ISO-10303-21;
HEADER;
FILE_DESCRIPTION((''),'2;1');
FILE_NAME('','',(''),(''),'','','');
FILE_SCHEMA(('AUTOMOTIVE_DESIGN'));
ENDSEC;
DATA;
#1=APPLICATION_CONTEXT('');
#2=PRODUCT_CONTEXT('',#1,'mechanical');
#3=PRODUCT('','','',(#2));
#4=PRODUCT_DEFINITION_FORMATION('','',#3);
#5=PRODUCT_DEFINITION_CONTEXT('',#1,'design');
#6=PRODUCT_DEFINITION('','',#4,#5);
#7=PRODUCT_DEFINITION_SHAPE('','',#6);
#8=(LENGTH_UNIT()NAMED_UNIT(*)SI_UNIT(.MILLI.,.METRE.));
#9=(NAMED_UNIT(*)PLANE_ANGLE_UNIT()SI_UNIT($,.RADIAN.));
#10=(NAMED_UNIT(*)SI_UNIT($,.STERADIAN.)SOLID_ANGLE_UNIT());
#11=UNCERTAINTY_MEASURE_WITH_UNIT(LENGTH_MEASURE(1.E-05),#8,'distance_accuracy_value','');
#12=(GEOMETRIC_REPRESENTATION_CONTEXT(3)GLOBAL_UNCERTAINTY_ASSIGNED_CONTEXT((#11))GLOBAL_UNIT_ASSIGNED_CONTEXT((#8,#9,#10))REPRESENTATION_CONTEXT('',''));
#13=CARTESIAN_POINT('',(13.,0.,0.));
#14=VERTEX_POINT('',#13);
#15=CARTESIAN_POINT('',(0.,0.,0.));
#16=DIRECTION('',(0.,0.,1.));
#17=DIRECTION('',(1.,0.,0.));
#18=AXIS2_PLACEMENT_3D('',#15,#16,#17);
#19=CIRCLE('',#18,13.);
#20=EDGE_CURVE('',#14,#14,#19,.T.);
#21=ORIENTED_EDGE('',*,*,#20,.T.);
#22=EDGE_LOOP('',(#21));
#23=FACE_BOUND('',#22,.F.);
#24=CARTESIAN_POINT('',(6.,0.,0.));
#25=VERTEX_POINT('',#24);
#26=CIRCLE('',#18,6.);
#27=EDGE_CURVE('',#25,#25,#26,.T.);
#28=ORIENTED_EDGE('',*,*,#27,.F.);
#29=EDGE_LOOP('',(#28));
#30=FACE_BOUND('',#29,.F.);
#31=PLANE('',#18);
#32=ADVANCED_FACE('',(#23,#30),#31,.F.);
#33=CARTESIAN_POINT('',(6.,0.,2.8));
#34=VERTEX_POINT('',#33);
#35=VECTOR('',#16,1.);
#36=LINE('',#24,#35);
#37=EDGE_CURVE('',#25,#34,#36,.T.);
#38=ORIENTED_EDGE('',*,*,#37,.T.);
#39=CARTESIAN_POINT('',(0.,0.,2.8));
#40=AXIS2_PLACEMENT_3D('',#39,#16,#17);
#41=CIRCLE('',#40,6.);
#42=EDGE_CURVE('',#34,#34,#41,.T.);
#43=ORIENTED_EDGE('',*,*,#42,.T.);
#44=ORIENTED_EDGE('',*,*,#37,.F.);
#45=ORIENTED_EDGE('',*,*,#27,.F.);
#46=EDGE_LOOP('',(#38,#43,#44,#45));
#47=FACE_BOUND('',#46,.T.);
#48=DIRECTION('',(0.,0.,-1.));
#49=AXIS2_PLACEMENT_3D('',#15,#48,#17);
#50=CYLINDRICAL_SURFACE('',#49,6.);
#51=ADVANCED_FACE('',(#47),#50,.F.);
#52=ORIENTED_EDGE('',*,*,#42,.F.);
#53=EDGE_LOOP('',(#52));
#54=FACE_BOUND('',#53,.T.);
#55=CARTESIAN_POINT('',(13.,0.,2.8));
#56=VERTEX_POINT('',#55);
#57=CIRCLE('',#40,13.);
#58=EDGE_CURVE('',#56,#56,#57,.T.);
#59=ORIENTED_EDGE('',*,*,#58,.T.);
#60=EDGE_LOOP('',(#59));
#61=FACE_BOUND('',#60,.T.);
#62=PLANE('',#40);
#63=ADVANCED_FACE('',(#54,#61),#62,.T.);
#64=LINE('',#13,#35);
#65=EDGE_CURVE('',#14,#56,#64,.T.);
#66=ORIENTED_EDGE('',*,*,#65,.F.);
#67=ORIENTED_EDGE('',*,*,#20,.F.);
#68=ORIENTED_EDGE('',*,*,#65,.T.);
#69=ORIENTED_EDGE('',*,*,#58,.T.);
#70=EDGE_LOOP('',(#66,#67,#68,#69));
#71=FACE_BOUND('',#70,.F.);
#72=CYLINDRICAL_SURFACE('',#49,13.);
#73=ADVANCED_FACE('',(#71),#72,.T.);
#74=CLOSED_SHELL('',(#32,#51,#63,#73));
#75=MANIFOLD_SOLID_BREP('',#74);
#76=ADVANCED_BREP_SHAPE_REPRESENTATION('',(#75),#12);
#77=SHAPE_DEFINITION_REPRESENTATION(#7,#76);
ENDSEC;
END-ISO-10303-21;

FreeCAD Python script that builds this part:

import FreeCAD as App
import Part
import Sketcher
from FreeCAD import Vector
Q = App.Units.Quantity

doc = App.newDocument("Part")
body = doc.addObject("PartDesign::Body", "Body")

sketch1 = doc.addObject("Sketcher::SketchObject", "Sketch")
body.addObject(sketch1)
sketch1.AttachmentSupport = (doc.XY_Plane, [""])
sketch1.MapMode = "FlatFace"
sketch1.addGeometry([
    Part.Circle(Vector(0, 0, 0), Vector(0, 0, 1), 13),
    Part.Circle(Vector(0, 0, 0), Vector(0, 0, 1), 6),
], False)
sketch1.addConstraint([
    Sketcher.Constraint("Coincident", 0, 3, -1, 1),
    Sketcher.Constraint("Coincident", 1, 3, -1, 1),
    Sketcher.Constraint("Diameter", 0, Q("26 mm")),
    Sketcher.Constraint("Diameter", 1, Q("12 mm")),
])
pad1 = doc.addObject("PartDesign::Pad", "Pad")
body.addObject(pad1)
pad1.Profile = sketch1
pad1.Length = 2.8

doc.recompute()
